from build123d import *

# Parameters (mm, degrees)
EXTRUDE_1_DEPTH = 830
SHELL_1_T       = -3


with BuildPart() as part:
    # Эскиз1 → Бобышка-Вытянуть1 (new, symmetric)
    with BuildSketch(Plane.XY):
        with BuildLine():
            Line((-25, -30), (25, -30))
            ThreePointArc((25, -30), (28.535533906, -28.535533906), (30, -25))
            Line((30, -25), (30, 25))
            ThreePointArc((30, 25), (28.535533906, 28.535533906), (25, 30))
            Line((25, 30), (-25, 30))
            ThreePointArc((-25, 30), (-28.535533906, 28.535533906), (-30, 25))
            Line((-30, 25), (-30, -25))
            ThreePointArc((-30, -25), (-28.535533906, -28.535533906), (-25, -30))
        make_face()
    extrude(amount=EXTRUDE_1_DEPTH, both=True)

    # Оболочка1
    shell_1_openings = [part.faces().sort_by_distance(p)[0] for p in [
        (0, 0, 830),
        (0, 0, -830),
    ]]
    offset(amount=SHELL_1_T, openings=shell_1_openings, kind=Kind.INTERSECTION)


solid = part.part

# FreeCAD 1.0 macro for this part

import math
import FreeCAD as App
import Part
import Sketcher
Q = App.Units.Quantity


def faces_at(feature, points):
    """Names of the faces that lie closest to the given points."""
    faces = feature.Shape.Faces
    near = lambda p: min(range(len(faces)), key=lambda i: faces[i].distToShape(Part.Vertex(*p))[0])
    return sorted({f"Face{near(p) + 1}" for p in points})

doc = App.newDocument("Part")
body = doc.addObject("PartDesign::Body", "Body")

# Sketch on XY plane
sketch1 = doc.addObject("Sketcher::SketchObject", "Sketch")
body.addObject(sketch1)
sketch1.AttachmentSupport = (doc.XY_Plane, [""])
sketch1.MapMode = "FlatFace"
sketch1.addGeometry([
    Part.LineSegment(App.Vector(-25, -30, 0), App.Vector(25, -30, 0)),  # 0
    Part.ArcOfCircle(Part.Circle(App.Vector(25, -25, 0), App.Vector(0, 0, 1), 5), math.radians(-90), math.radians(0)),  # 1
    Part.LineSegment(App.Vector(30, -25, 0), App.Vector(30, 25, 0)),  # 2
    Part.ArcOfCircle(Part.Circle(App.Vector(25, 25, 0), App.Vector(0, 0, 1), 5), math.radians(0), math.radians(90)),  # 3
    Part.LineSegment(App.Vector(25, 30, 0), App.Vector(-25, 30, 0)),  # 4
    Part.ArcOfCircle(Part.Circle(App.Vector(-25, 25, 0), App.Vector(0, 0, 1), 5), math.radians(90), math.radians(180)),  # 5
    Part.LineSegment(App.Vector(-30, 25, 0), App.Vector(-30, -25, 0)),  # 6
    Part.ArcOfCircle(Part.Circle(App.Vector(-25, -25, 0), App.Vector(0, 0, 1), 5), math.radians(180), math.radians(270)),  # 7
], False)
sketch1.addConstraint([
    Sketcher.Constraint("Tangent", 0, 2, 1, 1),
    Sketcher.Constraint("Tangent", 1, 2, 2, 1),
    Sketcher.Constraint("Tangent", 2, 2, 3, 1),
    Sketcher.Constraint("Tangent", 3, 2, 4, 1),
    Sketcher.Constraint("Tangent", 4, 2, 5, 1),
    Sketcher.Constraint("Tangent", 5, 2, 6, 1),
    Sketcher.Constraint("Tangent", 6, 2, 7, 1),
    Sketcher.Constraint("Tangent", 7, 2, 0, 1),
    Sketcher.Constraint("Horizontal", 0),
    Sketcher.Constraint("Vertical", 2),
    Sketcher.Constraint("Horizontal", 4),
    Sketcher.Constraint("Vertical", 6),
    Sketcher.Constraint("Equal", 1, 3),
    Sketcher.Constraint("Equal", 3, 5),
    Sketcher.Constraint("Equal", 5, 7),
    Sketcher.Constraint("Symmetric", 1, 3, 5, 3, -1, 1),
    Sketcher.Constraint("Equal", 4, 2),
    Sketcher.Constraint("Radius", 1, Q("5 mm")),
    Sketcher.Constraint("DistanceX", 0, 1, 0, 2, Q("50 mm")),
])
pad1 = doc.addObject("PartDesign::Pad", "Pad")
body.addObject(pad1)
pad1.Profile = sketch1
pad1.Length = 1660
pad1.Midplane = True
doc.recompute()

thickness = doc.addObject("PartDesign::Thickness", "Thickness")
body.addObject(thickness)
thickness.Base = (pad1, faces_at(pad1, [(0, 0, 830), (0, 0, -830)]))
thickness.Value = 3
thickness.Reversed = True
thickness.Join = "Intersection"

doc.recompute()
